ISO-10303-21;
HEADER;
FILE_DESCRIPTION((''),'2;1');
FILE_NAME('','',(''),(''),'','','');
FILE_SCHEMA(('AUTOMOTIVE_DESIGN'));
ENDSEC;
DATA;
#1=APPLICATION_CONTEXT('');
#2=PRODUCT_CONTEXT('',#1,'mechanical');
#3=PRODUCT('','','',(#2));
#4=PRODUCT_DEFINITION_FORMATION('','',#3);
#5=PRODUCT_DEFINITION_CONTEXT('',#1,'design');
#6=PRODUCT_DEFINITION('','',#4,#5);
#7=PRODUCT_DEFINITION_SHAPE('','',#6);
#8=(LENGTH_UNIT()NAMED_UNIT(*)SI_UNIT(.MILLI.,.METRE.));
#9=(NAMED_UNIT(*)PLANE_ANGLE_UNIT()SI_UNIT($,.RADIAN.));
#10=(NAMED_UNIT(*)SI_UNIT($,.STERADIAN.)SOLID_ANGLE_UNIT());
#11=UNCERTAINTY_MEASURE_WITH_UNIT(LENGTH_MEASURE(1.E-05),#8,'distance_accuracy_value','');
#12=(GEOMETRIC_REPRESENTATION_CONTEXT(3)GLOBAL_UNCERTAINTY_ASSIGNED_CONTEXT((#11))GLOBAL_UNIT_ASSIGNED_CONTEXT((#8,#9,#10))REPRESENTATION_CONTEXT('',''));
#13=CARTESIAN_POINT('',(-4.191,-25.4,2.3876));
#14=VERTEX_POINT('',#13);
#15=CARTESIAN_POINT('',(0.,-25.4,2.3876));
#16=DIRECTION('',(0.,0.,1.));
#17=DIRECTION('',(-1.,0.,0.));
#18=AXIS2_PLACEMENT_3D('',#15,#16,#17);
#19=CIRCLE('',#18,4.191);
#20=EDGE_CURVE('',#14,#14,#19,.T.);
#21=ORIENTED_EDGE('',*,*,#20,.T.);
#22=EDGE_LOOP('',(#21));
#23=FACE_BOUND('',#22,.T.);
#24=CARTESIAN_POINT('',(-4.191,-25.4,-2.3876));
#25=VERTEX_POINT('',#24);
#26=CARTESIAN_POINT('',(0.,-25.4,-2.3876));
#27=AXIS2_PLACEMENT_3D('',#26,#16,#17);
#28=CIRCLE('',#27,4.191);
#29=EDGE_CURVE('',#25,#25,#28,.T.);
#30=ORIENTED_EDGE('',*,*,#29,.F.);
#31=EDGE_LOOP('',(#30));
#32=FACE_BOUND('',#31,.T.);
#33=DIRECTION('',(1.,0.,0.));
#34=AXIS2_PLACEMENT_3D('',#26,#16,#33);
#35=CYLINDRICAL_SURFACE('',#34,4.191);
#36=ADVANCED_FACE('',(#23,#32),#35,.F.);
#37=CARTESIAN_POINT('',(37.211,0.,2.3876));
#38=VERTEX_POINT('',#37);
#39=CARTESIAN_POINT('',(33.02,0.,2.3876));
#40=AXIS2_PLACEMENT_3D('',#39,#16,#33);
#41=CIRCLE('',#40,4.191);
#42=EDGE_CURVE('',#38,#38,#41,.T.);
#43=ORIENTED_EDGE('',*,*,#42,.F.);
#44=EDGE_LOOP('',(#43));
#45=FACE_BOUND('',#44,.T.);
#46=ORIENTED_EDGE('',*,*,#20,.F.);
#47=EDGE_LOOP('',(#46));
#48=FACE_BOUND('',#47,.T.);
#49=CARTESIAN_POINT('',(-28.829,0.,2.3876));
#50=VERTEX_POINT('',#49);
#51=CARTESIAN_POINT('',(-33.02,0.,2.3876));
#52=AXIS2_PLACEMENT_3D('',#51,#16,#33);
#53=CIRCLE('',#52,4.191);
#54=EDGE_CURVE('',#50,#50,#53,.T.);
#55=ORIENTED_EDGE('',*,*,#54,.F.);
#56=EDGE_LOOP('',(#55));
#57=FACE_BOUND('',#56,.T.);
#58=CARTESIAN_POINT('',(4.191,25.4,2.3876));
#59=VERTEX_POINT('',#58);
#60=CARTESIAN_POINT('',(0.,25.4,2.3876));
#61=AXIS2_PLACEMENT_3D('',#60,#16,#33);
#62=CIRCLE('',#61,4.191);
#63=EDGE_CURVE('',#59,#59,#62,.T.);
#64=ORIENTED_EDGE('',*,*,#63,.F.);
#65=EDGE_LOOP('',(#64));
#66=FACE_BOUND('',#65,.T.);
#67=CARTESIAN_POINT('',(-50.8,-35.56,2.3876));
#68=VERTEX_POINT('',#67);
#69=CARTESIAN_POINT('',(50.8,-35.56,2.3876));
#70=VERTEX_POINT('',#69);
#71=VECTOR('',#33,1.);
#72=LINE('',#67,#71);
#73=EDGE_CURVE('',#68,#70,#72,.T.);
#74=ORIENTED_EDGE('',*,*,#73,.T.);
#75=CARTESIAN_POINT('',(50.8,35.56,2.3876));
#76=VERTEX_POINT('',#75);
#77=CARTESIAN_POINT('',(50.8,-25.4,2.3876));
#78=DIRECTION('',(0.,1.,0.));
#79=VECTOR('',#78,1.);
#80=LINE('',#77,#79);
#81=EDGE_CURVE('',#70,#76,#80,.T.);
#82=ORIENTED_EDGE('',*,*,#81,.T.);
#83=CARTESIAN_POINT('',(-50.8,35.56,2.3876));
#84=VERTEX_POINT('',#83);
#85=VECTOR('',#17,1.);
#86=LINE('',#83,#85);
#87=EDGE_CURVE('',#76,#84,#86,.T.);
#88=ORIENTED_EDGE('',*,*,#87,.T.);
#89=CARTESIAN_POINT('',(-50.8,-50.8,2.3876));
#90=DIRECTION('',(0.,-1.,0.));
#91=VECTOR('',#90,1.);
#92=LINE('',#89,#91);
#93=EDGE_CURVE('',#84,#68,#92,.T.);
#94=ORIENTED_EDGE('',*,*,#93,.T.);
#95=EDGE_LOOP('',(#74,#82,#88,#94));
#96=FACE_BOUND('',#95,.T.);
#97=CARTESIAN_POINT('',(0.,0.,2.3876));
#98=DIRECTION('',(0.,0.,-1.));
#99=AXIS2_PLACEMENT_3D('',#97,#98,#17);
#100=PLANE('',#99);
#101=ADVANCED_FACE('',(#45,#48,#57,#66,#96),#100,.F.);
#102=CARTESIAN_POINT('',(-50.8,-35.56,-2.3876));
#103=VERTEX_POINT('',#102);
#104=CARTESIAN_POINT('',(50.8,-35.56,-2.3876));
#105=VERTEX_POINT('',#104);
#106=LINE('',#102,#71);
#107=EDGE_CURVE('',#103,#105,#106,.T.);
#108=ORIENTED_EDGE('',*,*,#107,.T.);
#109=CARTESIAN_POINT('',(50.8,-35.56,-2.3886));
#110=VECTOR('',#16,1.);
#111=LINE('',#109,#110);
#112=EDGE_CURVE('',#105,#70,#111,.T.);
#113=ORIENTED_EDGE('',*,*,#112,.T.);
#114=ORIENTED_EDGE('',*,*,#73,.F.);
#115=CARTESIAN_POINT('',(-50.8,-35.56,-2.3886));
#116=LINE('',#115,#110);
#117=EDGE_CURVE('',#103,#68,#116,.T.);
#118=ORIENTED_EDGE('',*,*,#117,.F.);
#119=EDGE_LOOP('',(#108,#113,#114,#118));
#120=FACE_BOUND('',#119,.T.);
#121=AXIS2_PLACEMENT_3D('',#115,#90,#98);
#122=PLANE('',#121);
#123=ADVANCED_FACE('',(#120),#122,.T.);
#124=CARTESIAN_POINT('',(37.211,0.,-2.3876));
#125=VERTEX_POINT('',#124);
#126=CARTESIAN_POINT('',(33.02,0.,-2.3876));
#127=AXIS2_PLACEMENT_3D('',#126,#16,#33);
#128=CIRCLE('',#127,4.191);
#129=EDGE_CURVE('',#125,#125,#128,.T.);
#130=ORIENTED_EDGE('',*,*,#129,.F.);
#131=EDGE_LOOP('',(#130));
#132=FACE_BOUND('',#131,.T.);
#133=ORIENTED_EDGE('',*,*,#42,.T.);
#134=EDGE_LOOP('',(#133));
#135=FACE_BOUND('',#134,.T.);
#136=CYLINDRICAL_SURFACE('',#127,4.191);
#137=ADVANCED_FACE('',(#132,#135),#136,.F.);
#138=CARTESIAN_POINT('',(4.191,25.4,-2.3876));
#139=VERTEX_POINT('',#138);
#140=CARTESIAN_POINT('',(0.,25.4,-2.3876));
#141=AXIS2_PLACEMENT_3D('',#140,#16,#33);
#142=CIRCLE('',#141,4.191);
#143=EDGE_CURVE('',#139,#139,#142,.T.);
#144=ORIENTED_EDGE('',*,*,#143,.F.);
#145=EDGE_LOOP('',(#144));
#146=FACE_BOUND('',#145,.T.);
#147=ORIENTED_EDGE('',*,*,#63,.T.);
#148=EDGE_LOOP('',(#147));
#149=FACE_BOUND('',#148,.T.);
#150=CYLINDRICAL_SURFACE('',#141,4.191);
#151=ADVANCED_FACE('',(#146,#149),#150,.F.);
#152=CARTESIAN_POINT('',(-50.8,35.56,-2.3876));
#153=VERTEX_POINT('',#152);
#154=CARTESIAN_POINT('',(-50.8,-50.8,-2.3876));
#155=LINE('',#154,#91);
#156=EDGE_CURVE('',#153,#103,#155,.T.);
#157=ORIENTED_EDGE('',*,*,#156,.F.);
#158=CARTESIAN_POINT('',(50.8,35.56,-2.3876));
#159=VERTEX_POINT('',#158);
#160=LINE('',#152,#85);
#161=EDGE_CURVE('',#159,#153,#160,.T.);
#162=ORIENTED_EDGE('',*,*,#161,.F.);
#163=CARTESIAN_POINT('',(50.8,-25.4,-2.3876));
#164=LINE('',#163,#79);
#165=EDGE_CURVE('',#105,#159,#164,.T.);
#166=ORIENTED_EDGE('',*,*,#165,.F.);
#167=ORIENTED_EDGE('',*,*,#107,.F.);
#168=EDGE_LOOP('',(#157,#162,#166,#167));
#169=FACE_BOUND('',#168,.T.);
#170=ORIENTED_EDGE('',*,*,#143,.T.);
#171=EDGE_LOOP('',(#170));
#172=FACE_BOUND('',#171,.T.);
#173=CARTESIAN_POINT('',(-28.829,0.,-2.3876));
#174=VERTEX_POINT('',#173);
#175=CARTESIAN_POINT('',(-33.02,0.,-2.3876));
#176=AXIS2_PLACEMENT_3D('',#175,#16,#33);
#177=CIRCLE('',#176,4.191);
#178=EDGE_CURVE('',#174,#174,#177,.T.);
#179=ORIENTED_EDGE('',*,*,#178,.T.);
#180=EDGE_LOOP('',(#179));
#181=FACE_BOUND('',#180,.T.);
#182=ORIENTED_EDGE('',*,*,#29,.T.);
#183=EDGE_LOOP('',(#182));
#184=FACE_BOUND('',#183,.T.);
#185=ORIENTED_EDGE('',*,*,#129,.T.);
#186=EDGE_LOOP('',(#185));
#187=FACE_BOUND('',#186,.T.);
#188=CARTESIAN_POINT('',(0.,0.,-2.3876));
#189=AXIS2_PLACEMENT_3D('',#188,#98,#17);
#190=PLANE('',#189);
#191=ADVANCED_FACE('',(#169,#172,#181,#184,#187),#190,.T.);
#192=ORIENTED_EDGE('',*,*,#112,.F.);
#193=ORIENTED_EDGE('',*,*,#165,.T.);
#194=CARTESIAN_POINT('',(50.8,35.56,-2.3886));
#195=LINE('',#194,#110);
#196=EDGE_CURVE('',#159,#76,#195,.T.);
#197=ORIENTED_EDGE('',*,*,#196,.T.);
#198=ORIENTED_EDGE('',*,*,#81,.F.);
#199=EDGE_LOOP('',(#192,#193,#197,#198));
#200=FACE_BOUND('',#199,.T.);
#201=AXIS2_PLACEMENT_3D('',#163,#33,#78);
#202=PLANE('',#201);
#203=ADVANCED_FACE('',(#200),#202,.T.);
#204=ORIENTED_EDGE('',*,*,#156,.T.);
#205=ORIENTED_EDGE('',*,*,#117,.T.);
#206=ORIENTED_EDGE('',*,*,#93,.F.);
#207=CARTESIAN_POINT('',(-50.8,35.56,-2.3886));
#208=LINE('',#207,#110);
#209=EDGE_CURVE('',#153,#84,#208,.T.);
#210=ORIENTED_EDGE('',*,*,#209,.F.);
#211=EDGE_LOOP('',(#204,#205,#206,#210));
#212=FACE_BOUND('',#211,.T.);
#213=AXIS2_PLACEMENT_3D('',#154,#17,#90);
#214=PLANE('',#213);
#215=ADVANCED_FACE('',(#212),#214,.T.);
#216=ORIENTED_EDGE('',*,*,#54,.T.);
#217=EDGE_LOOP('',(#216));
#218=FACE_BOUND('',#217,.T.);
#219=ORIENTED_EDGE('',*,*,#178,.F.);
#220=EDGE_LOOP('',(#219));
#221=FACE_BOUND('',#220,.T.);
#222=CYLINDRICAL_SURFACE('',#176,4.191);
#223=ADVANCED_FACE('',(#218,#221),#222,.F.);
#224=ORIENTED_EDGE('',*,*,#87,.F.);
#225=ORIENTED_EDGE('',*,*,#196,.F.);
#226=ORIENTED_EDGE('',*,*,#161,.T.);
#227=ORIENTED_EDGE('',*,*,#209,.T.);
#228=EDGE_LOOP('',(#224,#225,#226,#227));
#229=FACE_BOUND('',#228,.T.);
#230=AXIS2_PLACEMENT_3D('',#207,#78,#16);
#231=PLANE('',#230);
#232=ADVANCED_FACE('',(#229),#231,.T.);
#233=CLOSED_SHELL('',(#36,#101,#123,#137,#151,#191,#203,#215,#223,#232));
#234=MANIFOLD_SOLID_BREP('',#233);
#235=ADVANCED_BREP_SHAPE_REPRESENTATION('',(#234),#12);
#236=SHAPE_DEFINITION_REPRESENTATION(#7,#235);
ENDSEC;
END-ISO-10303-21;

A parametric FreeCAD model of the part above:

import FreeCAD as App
import Part
import Sketcher
from FreeCAD import Vector
Q = App.Units.Quantity

doc = App.newDocument("Part")
body = doc.addObject("PartDesign::Body", "Body")

# Sketch on XY plane
sketch1 = body.newObject("Sketcher::SketchObject", "Sketch")
sketch1.AttachmentSupport = (doc.getObject("XY_Plane"), [""])
sketch1.MapMode = "FlatFace"
sketch1.addGeometry([
    Part.LineSegment(Vector(51, -51, 0), Vector(51, -25, 0)),  # 0
    Part.LineSegment(Vector(51, -25, 0), Vector(-25, 51, 0)),  # 1
    Part.LineSegment(Vector(-25, 51, 0), Vector(-51, 51, 0)),  # 2
    Part.LineSegment(Vector(-51, 51, 0), Vector(-51, -51, 0)),  # 3
    Part.LineSegment(Vector(-51, -51, 0), Vector(51, -51, 0)),  # 4
], False)
sketch1.addConstraint([
    Sketcher.Constraint("Coincident", 0, 2, 1, 1),
    Sketcher.Constraint("Coincident", 1, 2, 2, 1),
    Sketcher.Constraint("Coincident", 2, 2, 3, 1),
    Sketcher.Constraint("Coincident", 3, 2, 4, 1),
    Sketcher.Constraint("Coincident", 4, 2, 0, 1),
    Sketcher.Constraint("Vertical", 0),
    Sketcher.Constraint("Horizontal", 2),
    Sketcher.Constraint("Vertical", 3),
    Sketcher.Constraint("Horizontal", 4),
    Sketcher.Constraint("Symmetric", 2, 2, 4, 2, -1, 1),
    Sketcher.Constraint("Equal", 2, 0),
    Sketcher.Constraint("Equal", 4, 3),
    Sketcher.Constraint("DistanceX", 2, 2, 2, 1, Q("1 in")),
    Sketcher.Constraint("DistanceX", 4, 1, 4, 2, Q("4 in")),
])
pad1 = body.newObject("PartDesign::Pad", "Pad")
pad1.Profile = sketch1
pad1.Type = "TwoLengths"
pad1.Length = Q("0.094 in")
pad1.Length2 = Q("0.094 in")

# Sketch on XY plane
sketch2 = body.newObject("Sketcher::SketchObject", "Sketch001")
sketch2.AttachmentSupport = (doc.getObject("XY_Plane"), [""])
sketch2.MapMode = "FlatFace"
sketch2.AttachmentOffset = App.Placement(Vector(0, 0, 0.094 * 25.4), App.Rotation())
sketch2.addGeometry([
    Part.Circle(Vector(-38.1, -38.1, 0), Vector(0, 0, 1), 3.3),  # 0
    Part.Circle(Vector(-12.7, -38.1, 0), Vector(0, 0, 1), 3.3),  # 1
    Part.Circle(Vector(12.7, -38.1, 0), Vector(0, 0, 1), 3.3),  # 2
    Part.Circle(Vector(-38.1, -12.7, 0), Vector(0, 0, 1), 3.3),  # 3
    Part.Circle(Vector(-38.1, 12.7, 0), Vector(0, 0, 1), 3.3),  # 4
    Part.Circle(Vector(38.1, -38.1, 0), Vector(0, 0, 1), 3.3),  # 5
    Part.Circle(Vector(-38.1, 38.1, 0), Vector(0, 0, 1), 3.3),  # 6
], False)
sketch2.addConstraint([
    Sketcher.Constraint("Equal", 0, 1),
    Sketcher.Constraint("Equal", 1, 2),
    Sketcher.Constraint("Equal", 2, 3),
    Sketcher.Constraint("Equal", 3, 4),
    Sketcher.Constraint("Equal", 4, 5),
    Sketcher.Constraint("Equal", 5, 6),
    Sketcher.Constraint("Symmetric", 5, 3, 6, 3, -1, 1),
    Sketcher.Constraint("Symmetric", 1, 3, 2, 3, -2),
    Sketcher.Constraint("Symmetric", 0, 3, 5, 3, -2),
    Sketcher.Constraint("Symmetric", 3, 3, 4, 3, -1),
    Sketcher.Constraint("Horizontal", 0, 3, 1, 3),
    Sketcher.Constraint("Vertical", 0, 3, 3, 3),
    Sketcher.Constraint("Diameter", 0, Q("0.257 in")),
    Sketcher.Constraint("DistanceX", 0, 3, 1, 3, Q("1 in")),
    Sketcher.Constraint("DistanceX", 1, 3, 2, 3, Q("1 in")),
    Sketcher.Constraint("DistanceY", 0, 3, 3, 3, Q("1 in")),
    Sketcher.Constraint("DistanceY", 3, 3, 4, 3, Q("1 in")),
])
pocket1 = body.newObject("PartDesign::Pocket", "Pocket")
pocket1.Profile = sketch2
pocket1.Type = "ThroughAll"

# Sketch on XY plane
sketch3 = body.newObject("Sketcher::SketchObject", "Sketch002")
sketch3.AttachmentSupport = (doc.getObject("XY_Plane"), [""])
sketch3.MapMode = "FlatFace"
sketch3.AttachmentOffset = App.Placement(Vector(0, 0, 0.094 * 25.4), App.Rotation())
sketch3.addGeometry([
    Part.LineSegment(Vector(-51, 51, 0), Vector(-51, -51, 0)),
    Part.LineSegment(Vector(-51, -51, 0), Vector(51, -51, 0)),
    Part.LineSegment(Vector(51, -51, 0), Vector(51, 51, 0)),
    Part.LineSegment(Vector(51, 51, 0), Vector(-51, 51, 0)),
], False)
sketch3.addConstraint([
    Sketcher.Constraint("Coincident", 0, 2, 1, 1),
    Sketcher.Constraint("Coincident", 1, 2, 2, 1),
    Sketcher.Constraint("Coincident", 2, 2, 3, 1),
    Sketcher.Constraint("Coincident", 3, 2, 0, 1),
    Sketcher.Constraint("Vertical", 0),
    Sketcher.Constraint("Horizontal", 1),
    Sketcher.Constraint("Vertical", 2),
    Sketcher.Constraint("Horizontal", 3),
    Sketcher.Constraint("Symmetric", 0, 2, 2, 2, -1, 1),
    Sketcher.Constraint("Equal", 3, 0),
    Sketcher.Constraint("DistanceX", 1, 1, 1, 2, Q("4 in")),
])
pad2 = body.newObject("PartDesign::Pad", "Pad001")
pad2.Profile = sketch3
pad2.Length = Q("0.188 in")
pad2.Reversed = True

# Sketch on XY plane
sketch4 = body.newObject("Sketcher::SketchObject", "Sketch003")
sketch4.AttachmentSupport = (doc.getObject("XY_Plane"), [""])
sketch4.MapMode = "FlatFace"
sketch4.AttachmentOffset = App.Placement(Vector(0, 0, 0.094 * 25.4), App.Rotation())
sketch4.addGeometry([
    Part.Circle(Vector(-33, 0, 0), Vector(0, 0, 1), 4.2),
    Part.Circle(Vector(33, 0, 0), Vector(0, 0, 1), 4.2),
    Part.Circle(Vector(0, 25.4, 0), Vector(0, 0, 1), 4.2),
    Part.Circle(Vector(0, -25.4, 0), Vector(0, 0, 1), 4.2),
], False)
sketch4.addConstraint([
    Sketcher.Constraint("Equal", 0, 1),
    Sketcher.Constraint("Equal", 1, 2),
    Sketcher.Constraint("Equal", 2, 3),
    Sketcher.Constraint("Symmetric", 0, 3, 1, 3, -1, 1),
    Sketcher.Constraint("Symmetric", 2, 3, 3, 3, -1, 1),
    Sketcher.Constraint("PointOnObject", 0, 3, -1),
    Sketcher.Constraint("PointOnObject", 2, 3, -2),
    Sketcher.Constraint("Diameter", 0, Q("0.33 in")),
    Sketcher.Constraint("DistanceY", -1, 1, 2, 3, Q("1 in")),
    Sketcher.Constraint("DistanceX", 0, 3, -1, 1, Q("1.3 in")),
])
pocket2 = body.newObject("PartDesign::Pocket", "Pocket001")
pocket2.Profile = sketch4
pocket2.Type = "ThroughAll"

# Sketch on XY plane
sketch5 = body.newObject("Sketcher::SketchObject", "Sketch004")
sketch5.AttachmentSupport = (doc.getObject("XY_Plane"), [""])
sketch5.MapMode = "FlatFace"
sketch5.AttachmentOffset = App.Placement(Vector(0, 0, 0.094 * 25.4), App.Rotation())
sketch5.addGeometry([
    Part.LineSegment(Vector(-66, 66, 0), Vector(-66, -66, 0)),  # 0
    Part.LineSegment(Vector(-66, -66, 0), Vector(66, -66, 0)),  # 1
    Part.LineSegment(Vector(66, -66, 0), Vector(66, 66, 0)),  # 2
    Part.LineSegment(Vector(66, 66, 0), Vector(-66, 66, 0)),  # 3
    Part.LineSegment(Vector(51, -36, 0), Vector(-51, -36, 0)),  # 4
    Part.LineSegment(Vector(-51, -36, 0), Vector(-51, 36, 0)),  # 5
    Part.LineSegment(Vector(-51, 36, 0), Vector(51, 36, 0)),  # 6
    Part.LineSegment(Vector(51, 36, 0), Vector(51, -36, 0)),  # 7
], False)
sketch5.addConstraint([
    Sketcher.Constraint("Coincident", 0, 2, 1, 1),
    Sketcher.Constraint("Coincident", 1, 2, 2, 1),
    Sketcher.Constraint("Coincident", 2, 2, 3, 1),
    Sketcher.Constraint("Coincident", 3, 2, 0, 1),
    Sketcher.Constraint("Coincident", 4, 2, 5, 1),
    Sketcher.Constraint("Coincident", 5, 2, 6, 1),
    Sketcher.Constraint("Coincident", 6, 2, 7, 1),
    Sketcher.Constraint("Coincident", 7, 2, 4, 1),
    Sketcher.Constraint("Vertical", 0),
    Sketcher.Constraint("Horizontal", 1),
    Sketcher.Constraint("Vertical", 2),
    Sketcher.Constraint("Horizontal", 3),
    Sketcher.Constraint("Horizontal", 4),
    Sketcher.Constraint("Vertical", 5),
    Sketcher.Constraint("Horizontal", 6),
    Sketcher.Constraint("Vertical", 7),
    Sketcher.Constraint("Symmetric", 0, 2, 2, 2, -1, 1),
    Sketcher.Constraint("Symmetric", 4, 2, 6, 2, -1, 1),
    Sketcher.Constraint("Equal", 3, 0),
    Sketcher.Constraint("DistanceX", 4, 2, 4, 1, Q("4 in")),
    Sketcher.Constraint("DistanceY", 5, 1, 5, 2, Q("2.8 in")),
    Sketcher.Constraint("DistanceX", 1, 1, 1, 2, 132.352),
])
pocket3 = body.newObject("PartDesign::Pocket", "Pocket002")
pocket3.Profile = sketch5
pocket3.Length = Q("0.188 in")

doc.recompute()
